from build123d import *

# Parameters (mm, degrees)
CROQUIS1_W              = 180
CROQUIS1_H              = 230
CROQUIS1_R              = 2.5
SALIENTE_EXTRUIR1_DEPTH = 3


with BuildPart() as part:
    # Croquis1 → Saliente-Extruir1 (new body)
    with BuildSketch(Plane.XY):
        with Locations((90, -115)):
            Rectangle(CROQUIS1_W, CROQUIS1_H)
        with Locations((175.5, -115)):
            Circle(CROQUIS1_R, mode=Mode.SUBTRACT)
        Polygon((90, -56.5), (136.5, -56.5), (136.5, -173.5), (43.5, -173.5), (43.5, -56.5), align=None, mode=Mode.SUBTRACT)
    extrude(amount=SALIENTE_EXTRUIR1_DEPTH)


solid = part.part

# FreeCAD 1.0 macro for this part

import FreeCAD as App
import Part
import Sketcher
from FreeCAD import Vector
Q = App.Units.Quantity


def add_polygon(sketch, points):
    """Adds a closed chain of lines whose ends are joined by coincident constraints."""
    first, n = sketch.GeometryCount, len(points)
    for a, b in zip(points, points[1:] + points[:1]):
        sketch.addGeometry(Part.LineSegment(App.Vector(*a, 0), App.Vector(*b, 0)), False)
    for i in range(n):
        sketch.addConstraint(Sketcher.Constraint("Coincident", first + i, 2, first + (i + 1) % n, 1))

doc = App.newDocument("Part")
body = doc.addObject("PartDesign::Body", "Body")

# Sketch on XY plane
sketch1 = body.newObject("Sketcher::SketchObject", "Sketch")
sketch1.AttachmentSupport = (doc.getObject("XY_Plane"), [""])
sketch1.MapMode = "FlatFace"
add_polygon(sketch1, [(0, 0), (0, -230), (180, -230), (180, 0)])  # lines 0-3
add_polygon(sketch1, [(43.5, -56.5), (136.5, -56.5), (136.5, -173.5), (43.5, -173.5)])  # lines 4-7
sketch1.addGeometry(Part.Circle(Vector(175.5, -115, 0), Vector(0, 0, 1), 2.5), False)  # 8
sketch1.addConstraint(Sketcher.Constraint("Vertical", 0))
sketch1.addConstraint(Sketcher.Constraint("Horizontal", 1))
sketch1.addConstraint(Sketcher.Constraint("Vertical", 2))
sketch1.addConstraint(Sketcher.Constraint("Horizontal", 3))
sketch1.addConstraint(Sketcher.Constraint("Horizontal", 4))
sketch1.addConstraint(Sketcher.Constraint("Vertical", 5))
sketch1.addConstraint(Sketcher.Constraint("Horizontal", 6))
sketch1.addConstraint(Sketcher.Constraint("Vertical", 7))
sketch1.addConstraint(Sketcher.Constraint("Coincident", 3, 2, -1, 1))
sketch1.addConstraint(Sketcher.Constraint("Diameter", 8, Q("5 mm")))
sketch1.addConstraint(Sketcher.Constraint("DistanceX", 1, 1, 1, 2, Q("180 mm")))
sketch1.addConstraint(Sketcher.Constraint("DistanceX", 4, 1, 4, 2, Q("93 mm")))
sketch1.addConstraint(Sketcher.Constraint("DistanceY", 0, 2, 0, 1, Q("230 mm")))
sketch1.addConstraint(Sketcher.Constraint("DistanceY", 5, 2, 5, 1, Q("117 mm")))
sketch1.addConstraint(Sketcher.Constraint("DistanceY", 8, 3, -1, 1, Q("115 mm")))
sketch1.addConstraint(Sketcher.Constraint("DistanceX", 4, 2, 8, 3, Q("39 mm")))
sketch1.addConstraint(Sketcher.Constraint("DistanceX", -1, 1, 8, 3, Q("175.5 mm")))
sketch1.addConstraint(Sketcher.Constraint("DistanceY", 4, 2, -1, 1, Q("56.5 mm")))
pad1 = body.newObject("PartDesign::Pad", "Pad")
pad1.Profile = sketch1
pad1.Length = 3

doc.recompute()
